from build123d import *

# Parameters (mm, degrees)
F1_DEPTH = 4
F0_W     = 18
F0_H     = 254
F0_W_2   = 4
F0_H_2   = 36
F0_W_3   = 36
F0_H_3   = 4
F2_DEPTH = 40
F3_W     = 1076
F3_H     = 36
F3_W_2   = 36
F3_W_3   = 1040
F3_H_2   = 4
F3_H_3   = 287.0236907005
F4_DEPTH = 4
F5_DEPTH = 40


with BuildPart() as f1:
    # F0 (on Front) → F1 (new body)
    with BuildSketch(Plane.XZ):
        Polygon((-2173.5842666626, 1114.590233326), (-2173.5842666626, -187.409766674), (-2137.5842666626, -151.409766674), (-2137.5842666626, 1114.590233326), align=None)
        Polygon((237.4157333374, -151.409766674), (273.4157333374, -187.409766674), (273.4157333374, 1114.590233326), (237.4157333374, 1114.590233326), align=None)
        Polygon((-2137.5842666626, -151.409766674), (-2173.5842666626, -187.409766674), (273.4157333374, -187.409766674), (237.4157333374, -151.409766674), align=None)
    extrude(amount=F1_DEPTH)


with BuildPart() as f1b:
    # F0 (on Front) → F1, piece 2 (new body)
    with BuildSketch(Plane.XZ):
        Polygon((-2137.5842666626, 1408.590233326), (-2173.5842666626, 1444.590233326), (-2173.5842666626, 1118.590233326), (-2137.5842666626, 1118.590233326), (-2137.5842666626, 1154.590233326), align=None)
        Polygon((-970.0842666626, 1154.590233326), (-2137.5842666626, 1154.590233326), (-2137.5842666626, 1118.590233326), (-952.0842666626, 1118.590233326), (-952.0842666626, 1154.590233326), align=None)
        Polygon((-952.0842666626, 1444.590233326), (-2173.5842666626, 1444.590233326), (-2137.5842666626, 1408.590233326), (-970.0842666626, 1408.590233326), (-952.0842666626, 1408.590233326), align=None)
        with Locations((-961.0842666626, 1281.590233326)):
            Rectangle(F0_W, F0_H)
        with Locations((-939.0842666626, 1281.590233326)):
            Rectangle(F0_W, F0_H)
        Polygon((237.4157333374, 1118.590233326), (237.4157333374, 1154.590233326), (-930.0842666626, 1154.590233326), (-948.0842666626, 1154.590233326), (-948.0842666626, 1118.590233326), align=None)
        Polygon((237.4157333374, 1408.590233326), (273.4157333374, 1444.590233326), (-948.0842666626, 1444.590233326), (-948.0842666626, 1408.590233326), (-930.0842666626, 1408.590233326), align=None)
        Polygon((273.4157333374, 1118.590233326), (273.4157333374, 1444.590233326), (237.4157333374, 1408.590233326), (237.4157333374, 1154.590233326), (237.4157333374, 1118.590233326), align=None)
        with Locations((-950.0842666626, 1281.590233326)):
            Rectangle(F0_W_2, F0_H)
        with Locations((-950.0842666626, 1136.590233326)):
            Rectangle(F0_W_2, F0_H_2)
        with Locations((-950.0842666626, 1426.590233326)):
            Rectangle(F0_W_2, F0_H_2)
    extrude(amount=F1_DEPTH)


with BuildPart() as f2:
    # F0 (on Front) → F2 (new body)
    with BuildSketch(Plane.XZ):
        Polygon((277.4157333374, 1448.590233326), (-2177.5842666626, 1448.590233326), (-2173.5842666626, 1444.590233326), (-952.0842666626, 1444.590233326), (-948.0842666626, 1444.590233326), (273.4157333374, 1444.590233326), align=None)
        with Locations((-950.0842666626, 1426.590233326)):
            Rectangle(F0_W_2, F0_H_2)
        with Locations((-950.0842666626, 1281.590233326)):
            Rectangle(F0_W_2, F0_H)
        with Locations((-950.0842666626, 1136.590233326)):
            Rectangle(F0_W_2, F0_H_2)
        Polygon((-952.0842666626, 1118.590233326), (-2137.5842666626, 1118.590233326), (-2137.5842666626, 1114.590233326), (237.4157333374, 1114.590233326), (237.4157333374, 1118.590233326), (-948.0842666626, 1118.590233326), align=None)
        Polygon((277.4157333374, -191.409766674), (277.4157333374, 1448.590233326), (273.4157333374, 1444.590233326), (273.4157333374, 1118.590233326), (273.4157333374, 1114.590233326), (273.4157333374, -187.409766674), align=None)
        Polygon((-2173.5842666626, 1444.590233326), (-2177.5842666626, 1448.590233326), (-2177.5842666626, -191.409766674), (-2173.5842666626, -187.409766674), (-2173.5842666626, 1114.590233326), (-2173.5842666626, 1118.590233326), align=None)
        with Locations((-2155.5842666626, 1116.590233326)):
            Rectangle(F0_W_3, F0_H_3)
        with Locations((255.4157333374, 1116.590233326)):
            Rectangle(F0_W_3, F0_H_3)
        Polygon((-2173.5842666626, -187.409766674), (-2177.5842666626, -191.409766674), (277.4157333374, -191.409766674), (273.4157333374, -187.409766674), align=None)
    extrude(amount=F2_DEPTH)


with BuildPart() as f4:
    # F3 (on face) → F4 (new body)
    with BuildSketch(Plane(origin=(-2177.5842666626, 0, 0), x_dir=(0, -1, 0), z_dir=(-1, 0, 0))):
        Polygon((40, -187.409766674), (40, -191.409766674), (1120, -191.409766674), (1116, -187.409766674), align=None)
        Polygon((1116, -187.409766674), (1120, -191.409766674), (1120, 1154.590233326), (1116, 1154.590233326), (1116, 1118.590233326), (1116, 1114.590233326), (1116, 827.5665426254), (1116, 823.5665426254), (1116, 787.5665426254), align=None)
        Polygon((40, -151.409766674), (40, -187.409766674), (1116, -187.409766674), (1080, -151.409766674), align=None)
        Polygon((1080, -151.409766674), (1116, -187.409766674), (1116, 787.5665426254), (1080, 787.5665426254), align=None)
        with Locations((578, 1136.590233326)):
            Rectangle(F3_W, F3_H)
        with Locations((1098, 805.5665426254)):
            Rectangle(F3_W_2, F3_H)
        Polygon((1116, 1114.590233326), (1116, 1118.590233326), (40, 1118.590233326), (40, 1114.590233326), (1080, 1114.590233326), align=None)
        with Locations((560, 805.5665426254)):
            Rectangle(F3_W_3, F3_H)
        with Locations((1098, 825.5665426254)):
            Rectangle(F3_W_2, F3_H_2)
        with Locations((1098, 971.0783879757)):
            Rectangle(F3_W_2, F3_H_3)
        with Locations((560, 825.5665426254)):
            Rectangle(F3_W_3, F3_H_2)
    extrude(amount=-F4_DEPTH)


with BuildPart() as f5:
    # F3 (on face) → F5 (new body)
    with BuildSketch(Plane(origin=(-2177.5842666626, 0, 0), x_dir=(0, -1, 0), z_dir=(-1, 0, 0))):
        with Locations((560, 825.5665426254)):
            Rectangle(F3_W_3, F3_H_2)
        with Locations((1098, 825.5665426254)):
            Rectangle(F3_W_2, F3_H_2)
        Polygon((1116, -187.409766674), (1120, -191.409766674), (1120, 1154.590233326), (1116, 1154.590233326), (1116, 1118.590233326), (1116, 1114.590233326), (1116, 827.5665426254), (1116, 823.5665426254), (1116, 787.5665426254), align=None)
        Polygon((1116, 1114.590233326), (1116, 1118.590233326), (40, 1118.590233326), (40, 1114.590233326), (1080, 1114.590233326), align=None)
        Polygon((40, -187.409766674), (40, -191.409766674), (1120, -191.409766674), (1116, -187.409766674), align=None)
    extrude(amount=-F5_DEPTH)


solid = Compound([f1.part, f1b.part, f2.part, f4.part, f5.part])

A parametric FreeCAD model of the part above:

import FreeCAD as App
import Part
import Sketcher
from FreeCAD import Vector
Q = App.Units.Quantity


def add_polygon(sketch, points):
    """Adds a closed chain of lines whose ends are joined by coincident constraints."""
    first, n = sketch.GeometryCount, len(points)
    for a, b in zip(points, points[1:] + points[:1]):
        sketch.addGeometry(Part.LineSegment(App.Vector(*a, 0), App.Vector(*b, 0)), False)
    for i in range(n):
        sketch.addConstraint(Sketcher.Constraint("Coincident", first + i, 2, first + (i + 1) % n, 1))

doc = App.newDocument("Part")
params = doc.addObject("Spreadsheet::Sheet", "Params")
for row, (alias, value) in enumerate([
    ("sketch1_width", "2447 mm"),
    ("sketch1_width2", "36 mm"),
    ("sketch1_height", "1302 mm"),
    ("sketch1_height2", "1266 mm"),
    ("pad1_length", "4 mm"),
    ("sketch2_width", "2447 mm"),
    ("sketch2_height", "326 mm"),
    ("sketch2_height2", "254 mm"),
    ("sketch2_width2", "1167.5 mm"),
    ("pad2_length", "4 mm"),
    ("sketch3_width", "2455 mm"),
    ("sketch3_width2", "2447 mm"),
    ("sketch3_height", "1640 mm"),
    ("sketch3_height2", "1302 mm"),
    ("sketch3_height3", "326 mm"),
    ("pad3_length", "40 mm"),
    ("sketch4_width", "1080 mm"),
    ("sketch4_width2", "1040 mm"),
    ("sketch4_height", "1346 mm"),
    ("sketch4_height2", "40 mm"),
    ("pad4_length", "4 mm"),
    ("sketch5_width", "1076 mm"),
    ("sketch5_width2", "1080 mm"),
    ("sketch5_height", "1346 mm"),
    ("sketch5_height2", "36 mm"),
    ("pad5_length", "40 mm"),
], start=1):
    params.set(f"A{row}", alias)
    params.set(f"B{row}", "=" + value)
    params.setAlias(f"B{row}", alias)

body = doc.addObject("PartDesign::Body", "Body")

sketch1 = body.newObject("Sketcher::SketchObject", "Sketch")
sketch1.AttachmentSupport = (doc.getObject("XZ_Plane"), [""])
sketch1.MapMode = "FlatFace"
add_polygon(sketch1, [(-2174, 1115), (-2174, -187), (273, -187), (273, 1115), (237, 1115), (237, -151), (-2138, -151), (-2138, 1115)])
sketch1.addConstraint(Sketcher.Constraint("Vertical", 0))
sketch1.addConstraint(Sketcher.Constraint("Horizontal", 1))
sketch1.addConstraint(Sketcher.Constraint("Vertical", 2))
sketch1.addConstraint(Sketcher.Constraint("Horizontal", 3))
sketch1.addConstraint(Sketcher.Constraint("Vertical", 4))
sketch1.addConstraint(Sketcher.Constraint("Horizontal", 5))
sketch1.addConstraint(Sketcher.Constraint("Vertical", 6))
sketch1.addConstraint(Sketcher.Constraint("Horizontal", 7))
sketch1.addConstraint(Sketcher.Constraint("Horizontal", 3, 2, 6, 2))
sketch1.addConstraint(Sketcher.Constraint("Equal", 3, 7))
sketch1.addConstraint(Sketcher.Constraint("DistanceX", 1, 1, 1, 2, Q("2447 mm")))
sketch1.addConstraint(Sketcher.Constraint("DistanceX", 3, 2, 3, 1, Q("36 mm")))
sketch1.addConstraint(Sketcher.Constraint("DistanceY", 0, 2, 0, 1, Q("1302 mm")))
sketch1.addConstraint(Sketcher.Constraint("DistanceY", 4, 2, 4, 1, Q("1266 mm")))
sketch1.addConstraint(Sketcher.Constraint("DistanceX", 0, 2, -1, 1, Q("2173.584267 mm")))
sketch1.addConstraint(Sketcher.Constraint("DistanceY", 0, 2, -1, 1, Q("187.409767 mm")))
sketch1.setExpression("Constraints[18]", "Params.sketch1_width")
sketch1.setExpression("Constraints[19]", "Params.sketch1_width2")
sketch1.setExpression("Constraints[20]", "Params.sketch1_height")
sketch1.setExpression("Constraints[21]", "Params.sketch1_height2")
pad1 = body.newObject("PartDesign::Pad", "Pad")
pad1.Profile = sketch1
pad1.setExpression("Length", "Params.pad1_length")
body2 = doc.addObject("PartDesign::Body", "Body001")

sketch2 = body2.newObject("Sketcher::SketchObject", "Sketch001")
sketch2.AttachmentSupport = (doc.getObject("XZ_Plane001"), [""])
sketch2.MapMode = "FlatFace"
add_polygon(sketch2, [(-2174, 1445), (-2174, 1119), (273, 1119), (273, 1445)])
add_polygon(sketch2, [(-970, 1155), (-2138, 1155), (-2138, 1409), (-970, 1409)])
add_polygon(sketch2, [(237, 1409), (237, 1155), (-930, 1155), (-930, 1409)])
sketch2.addConstraint(Sketcher.Constraint("Vertical", 0))
sketch2.addConstraint(Sketcher.Constraint("Horizontal", 1))
sketch2.addConstraint(Sketcher.Constraint("Vertical", 2))
sketch2.addConstraint(Sketcher.Constraint("Horizontal", 3))
sketch2.addConstraint(Sketcher.Constraint("Horizontal", 4))
sketch2.addConstraint(Sketcher.Constraint("Vertical", 5))
sketch2.addConstraint(Sketcher.Constraint("Horizontal", 6))
sketch2.addConstraint(Sketcher.Constraint("Vertical", 7))
sketch2.addConstraint(Sketcher.Constraint("Vertical", 8))
sketch2.addConstraint(Sketcher.Constraint("Horizontal", 9))
sketch2.addConstraint(Sketcher.Constraint("Vertical", 10))
sketch2.addConstraint(Sketcher.Constraint("Horizontal", 11))
sketch2.addConstraint(Sketcher.Constraint("Horizontal", 7, 2, 8, 2))
sketch2.addConstraint(Sketcher.Constraint("Horizontal", 6, 2, 10, 2))
sketch2.addConstraint(Sketcher.Constraint("Equal", 6, 9))
sketch2.addConstraint(Sketcher.Constraint("DistanceX", 1, 1, 1, 2, Q("2447 mm")))
sketch2.addConstraint(Sketcher.Constraint("DistanceY", 0, 2, 0, 1, Q("326 mm")))
sketch2.addConstraint(Sketcher.Constraint("DistanceY", 5, 1, 5, 2, Q("254 mm")))
sketch2.addConstraint(Sketcher.Constraint("DistanceX", 4, 2, 4, 1, Q("1167.5 mm")))
sketch2.addConstraint(Sketcher.Constraint("DistanceX", 0, 2, 4, 2, Q("36 mm")))
sketch2.addConstraint(Sketcher.Constraint("DistanceY", 0, 2, 4, 2, Q("36 mm")))
sketch2.addConstraint(Sketcher.Constraint("DistanceX", 8, 2, 1, 2, Q("36 mm")))
sketch2.addConstraint(Sketcher.Constraint("DistanceX", 0, 2, -1, 1, Q("2173.584267 mm")))
sketch2.addConstraint(Sketcher.Constraint("DistanceY", -1, 1, 0, 2, Q("1118.590233 mm")))
sketch2.setExpression("Constraints[27]", "Params.sketch2_width")
sketch2.setExpression("Constraints[28]", "Params.sketch2_height")
sketch2.setExpression("Constraints[29]", "Params.sketch2_height2")
sketch2.setExpression("Constraints[30]", "Params.sketch2_width2")
pad2 = body2.newObject("PartDesign::Pad", "Pad001")
pad2.Profile = sketch2
pad2.setExpression("Length", "Params.pad2_length")
body3 = doc.addObject("PartDesign::Body", "Body002")

sketch3 = body3.newObject("Sketcher::SketchObject", "Sketch002")
sketch3.AttachmentSupport = (doc.getObject("XZ_Plane002"), [""])
sketch3.MapMode = "FlatFace"
add_polygon(sketch3, [(277, 1449), (-2178, 1449), (-2178, -191), (277, -191)])
add_polygon(sketch3, [(-2174, -187), (-2174, 1115), (273, 1115), (273, -187)])
add_polygon(sketch3, [(-948, 1119), (-948, 1445), (273, 1445), (273, 1119)])
add_polygon(sketch3, [(-2174, 1119), (-2174, 1445), (-952, 1445), (-952, 1119)])
sketch3.addConstraint(Sketcher.Constraint("Horizontal", 0))
sketch3.addConstraint(Sketcher.Constraint("Vertical", 1))
sketch3.addConstraint(Sketcher.Constraint("Horizontal", 2))
sketch3.addConstraint(Sketcher.Constraint("Vertical", 3))
sketch3.addConstraint(Sketcher.Constraint("Vertical", 4))
sketch3.addConstraint(Sketcher.Constraint("Horizontal", 5))
sketch3.addConstraint(Sketcher.Constraint("Vertical", 6))
sketch3.addConstraint(Sketcher.Constraint("Horizontal", 7))
sketch3.addConstraint(Sketcher.Constraint("Vertical", 8))
sketch3.addConstraint(Sketcher.Constraint("Horizontal", 9))
sketch3.addConstraint(Sketcher.Constraint("Vertical", 10))
sketch3.addConstraint(Sketcher.Constraint("Horizontal", 11))
sketch3.addConstraint(Sketcher.Constraint("Vertical", 12))
sketch3.addConstraint(Sketcher.Constraint("Horizontal", 13))
sketch3.addConstraint(Sketcher.Constraint("Vertical", 14))
sketch3.addConstraint(Sketcher.Constraint("Horizontal", 15))
sketch3.addConstraint(Sketcher.Constraint("Horizontal", 9, 2, 12, 2))
sketch3.addConstraint(Sketcher.Constraint("Horizontal", 11, 2, 14, 2))
sketch3.addConstraint(Sketcher.Constraint("Vertical", 6, 2, 9, 2))
sketch3.addConstraint(Sketcher.Constraint("Vertical", 7, 2, 12, 2))
sketch3.addConstraint(Sketcher.Constraint("Equal", 11, 13))
sketch3.addConstraint(Sketcher.Constraint("DistanceX", 0, 2, 0, 1, Q("2455 mm")))
sketch3.addConstraint(Sketcher.Constraint("DistanceX", 5, 1, 5, 2, Q("2447 mm")))
sketch3.addConstraint(Sketcher.Constraint("DistanceY", 1, 2, 1, 1, Q("1640 mm")))
sketch3.addConstraint(Sketcher.Constraint("DistanceY", 4, 1, 4, 2, Q("1302 mm")))
sketch3.addConstraint(Sketcher.Constraint("DistanceY", 8, 1, 8, 2, Q("326 mm")))
sketch3.addConstraint(Sketcher.Constraint("DistanceX", 9, 1, 9, 2, Q("1221.5 mm")))
sketch3.addConstraint(Sketcher.Constraint("DistanceX", 0, 2, 4, 2, Q("4 mm")))
sketch3.addConstraint(Sketcher.Constraint("DistanceY", 4, 2, 0, 2, Q("334 mm")))
sketch3.addConstraint(Sketcher.Constraint("DistanceY", 8, 2, 3, 2, Q("4 mm")))
sketch3.addConstraint(Sketcher.Constraint("DistanceX", 0, 2, -1, 1, Q("2177.584267 mm")))
sketch3.addConstraint(Sketcher.Constraint("DistanceY", -1, 1, 0, 2, Q("1448.590233 mm")))
sketch3.setExpression("Constraints[37]", "Params.sketch3_width")
sketch3.setExpression("Constraints[38]", "Params.sketch3_width2")
sketch3.setExpression("Constraints[39]", "Params.sketch3_height")
sketch3.setExpression("Constraints[40]", "Params.sketch3_height2")
sketch3.setExpression("Constraints[41]", "Params.sketch3_height3")
pad3 = body3.newObject("PartDesign::Pad", "Pad002")
pad3.Profile = sketch3
pad3.setExpression("Length", "Params.pad3_length")
body4 = doc.addObject("PartDesign::Body", "Body003")

sketch4 = body4.newObject("Sketcher::SketchObject", "Sketch003")
sketch4.AttachmentSupport = (doc.getObject("YZ_Plane003"), [""])
sketch4.MapMode = "FlatFace"
sketch4.AttachmentOffset = App.Placement(Vector(0, 0, -2177.584267), App.Rotation())
add_polygon(sketch4, [(-40, -191), (-1120, -191), (-1120, 1155), (-40, 1155), (-40, 1115), (-1080, 1115), (-1080, 828), (-40, 828), (-40, 788), (-1080, 788), (-1080, -151), (-40, -151)])
sketch4.addConstraint(Sketcher.Constraint("Horizontal", 0))
sketch4.addConstraint(Sketcher.Constraint("Vertical", 1))
sketch4.addConstraint(Sketcher.Constraint("Horizontal", 2))
sketch4.addConstraint(Sketcher.Constraint("Vertical", 3))
sketch4.addConstraint(Sketcher.Constraint("Horizontal", 4))
sketch4.addConstraint(Sketcher.Constraint("Vertical", 5))
sketch4.addConstraint(Sketcher.Constraint("Horizontal", 6))
sketch4.addConstraint(Sketcher.Constraint("Vertical", 7))
sketch4.addConstraint(Sketcher.Constraint("Horizontal", 8))
sketch4.addConstraint(Sketcher.Constraint("Vertical", 9))
sketch4.addConstraint(Sketcher.Constraint("Horizontal", 10))
sketch4.addConstraint(Sketcher.Constraint("Vertical", 11))
sketch4.addConstraint(Sketcher.Constraint("Vertical", 3, 2, 6, 2))
sketch4.addConstraint(Sketcher.Constraint("Vertical", 5, 2, 8, 2))
sketch4.addConstraint(Sketcher.Constraint("Vertical", 7, 2, 10, 2))
sketch4.addConstraint(Sketcher.Constraint("Equal", 3, 7))
sketch4.addConstraint(Sketcher.Constraint("Equal", 7, 11))
sketch4.addConstraint(Sketcher.Constraint("DistanceX", 0, 2, 0, 1, Q("1080 mm")))
sketch4.addConstraint(Sketcher.Constraint("DistanceX", 4, 2, 4, 1, Q("1040 mm")))
sketch4.addConstraint(Sketcher.Constraint("DistanceY", 1, 1, 1, 2, Q("1346 mm")))
sketch4.addConstraint(Sketcher.Constraint("DistanceY", 3, 2, 3, 1, Q("40 mm")))
sketch4.addConstraint(Sketcher.Constraint("DistanceX", 0, 2, -1, 1, Q("1120 mm")))
sketch4.addConstraint(Sketcher.Constraint("DistanceY", 5, 2, 5, 1, Q("287.023691 mm")))
sketch4.addConstraint(Sketcher.Constraint("DistanceY", 0, 2, -1, 1, Q("191.409767 mm")))
sketch4.setExpression("Constraints[29]", "Params.sketch4_width")
sketch4.setExpression("Constraints[30]", "Params.sketch4_width2")
sketch4.setExpression("Constraints[31]", "Params.sketch4_height")
sketch4.setExpression("Constraints[32]", "Params.sketch4_height2")
pad4 = body4.newObject("PartDesign::Pad", "Pad003")
pad4.Profile = sketch4
pad4.setExpression("Length", "Params.pad4_length")
body5 = doc.addObject("PartDesign::Body", "Body004")

sketch5 = body5.newObject("Sketcher::SketchObject", "Sketch004")
sketch5.AttachmentSupport = (doc.getObject("YZ_Plane004"), [""])
sketch5.MapMode = "FlatFace"
sketch5.AttachmentOffset = App.Placement(Vector(0, 0, -2177.584267), App.Rotation())
add_polygon(sketch5, [(-40, 827.6), (-40, 823.6), (-1116, 823.6), (-1116, -187.4), (-40, -187.4), (-40, -191.4), (-1120, -191.4), (-1120, 1154.6), (-1116, 1154.6), (-1116, 1118.6), (-40, 1118.6), (-40, 1114.6), (-1116, 1114.6), (-1116, 827.6)])
sketch5.addConstraint(Sketcher.Constraint("Vertical", 0))
sketch5.addConstraint(Sketcher.Constraint("Horizontal", 1))
sketch5.addConstraint(Sketcher.Constraint("Vertical", 2))
sketch5.addConstraint(Sketcher.Constraint("Horizontal", 3))
sketch5.addConstraint(Sketcher.Constraint("Vertical", 4))
sketch5.addConstraint(Sketcher.Constraint("Horizontal", 5))
sketch5.addConstraint(Sketcher.Constraint("Vertical", 6))
sketch5.addConstraint(Sketcher.Constraint("Horizontal", 7))
sketch5.addConstraint(Sketcher.Constraint("Vertical", 8))
sketch5.addConstraint(Sketcher.Constraint("Horizontal", 9))
sketch5.addConstraint(Sketcher.Constraint("Vertical", 10))
sketch5.addConstraint(Sketcher.Constraint("Horizontal", 11))
sketch5.addConstraint(Sketcher.Constraint("Vertical", 12))
sketch5.addConstraint(Sketcher.Constraint("Horizontal", 13))
sketch5.addConstraint(Sketcher.Constraint("Vertical", 0, 2, 3, 2))
sketch5.addConstraint(Sketcher.Constraint("Vertical", 2, 2, 7, 2))
sketch5.addConstraint(Sketcher.Constraint("Vertical", 4, 2, 9, 2))
sketch5.addConstraint(Sketcher.Constraint("Vertical", 8, 2, 11, 2))
sketch5.addConstraint(Sketcher.Constraint("Equal", 7, 0))
sketch5.addConstraint(Sketcher.Constraint("Equal", 0, 4))
sketch5.addConstraint(Sketcher.Constraint("Equal", 4, 10))
sketch5.addConstraint(Sketcher.Constraint("DistanceX", 1, 2, 1, 1, Q("1076 mm")))
sketch5.addConstraint(Sketcher.Constraint("DistanceX", 5, 2, 5, 1, Q("1080 mm")))
sketch5.addConstraint(Sketcher.Constraint("DistanceY", 6, 1, 6, 2, Q("1346 mm")))
sketch5.addConstraint(Sketcher.Constraint("DistanceY", 8, 2, 8, 1, Q("36 mm")))
sketch5.addConstraint(Sketcher.Constraint("DistanceX", 0, 2, -1, 1, Q("40 mm")))
sketch5.addConstraint(Sketcher.Constraint("DistanceY", 2, 2, 2, 1, Q("1010.976309 mm")))
sketch5.addConstraint(Sketcher.Constraint("DistanceY", -1, 1, 0, 2, Q("823.566543 mm")))
sketch5.setExpression("Constraints[35]", "Params.sketch5_width")
sketch5.setExpression("Constraints[36]", "Params.sketch5_width2")
sketch5.setExpression("Constraints[37]", "Params.sketch5_height")
sketch5.setExpression("Constraints[38]", "Params.sketch5_height2")
pad5 = body5.newObject("PartDesign::Pad", "Pad004")
pad5.Profile = sketch5
pad5.setExpression("Length", "Params.pad5_length")

doc.recompute()
